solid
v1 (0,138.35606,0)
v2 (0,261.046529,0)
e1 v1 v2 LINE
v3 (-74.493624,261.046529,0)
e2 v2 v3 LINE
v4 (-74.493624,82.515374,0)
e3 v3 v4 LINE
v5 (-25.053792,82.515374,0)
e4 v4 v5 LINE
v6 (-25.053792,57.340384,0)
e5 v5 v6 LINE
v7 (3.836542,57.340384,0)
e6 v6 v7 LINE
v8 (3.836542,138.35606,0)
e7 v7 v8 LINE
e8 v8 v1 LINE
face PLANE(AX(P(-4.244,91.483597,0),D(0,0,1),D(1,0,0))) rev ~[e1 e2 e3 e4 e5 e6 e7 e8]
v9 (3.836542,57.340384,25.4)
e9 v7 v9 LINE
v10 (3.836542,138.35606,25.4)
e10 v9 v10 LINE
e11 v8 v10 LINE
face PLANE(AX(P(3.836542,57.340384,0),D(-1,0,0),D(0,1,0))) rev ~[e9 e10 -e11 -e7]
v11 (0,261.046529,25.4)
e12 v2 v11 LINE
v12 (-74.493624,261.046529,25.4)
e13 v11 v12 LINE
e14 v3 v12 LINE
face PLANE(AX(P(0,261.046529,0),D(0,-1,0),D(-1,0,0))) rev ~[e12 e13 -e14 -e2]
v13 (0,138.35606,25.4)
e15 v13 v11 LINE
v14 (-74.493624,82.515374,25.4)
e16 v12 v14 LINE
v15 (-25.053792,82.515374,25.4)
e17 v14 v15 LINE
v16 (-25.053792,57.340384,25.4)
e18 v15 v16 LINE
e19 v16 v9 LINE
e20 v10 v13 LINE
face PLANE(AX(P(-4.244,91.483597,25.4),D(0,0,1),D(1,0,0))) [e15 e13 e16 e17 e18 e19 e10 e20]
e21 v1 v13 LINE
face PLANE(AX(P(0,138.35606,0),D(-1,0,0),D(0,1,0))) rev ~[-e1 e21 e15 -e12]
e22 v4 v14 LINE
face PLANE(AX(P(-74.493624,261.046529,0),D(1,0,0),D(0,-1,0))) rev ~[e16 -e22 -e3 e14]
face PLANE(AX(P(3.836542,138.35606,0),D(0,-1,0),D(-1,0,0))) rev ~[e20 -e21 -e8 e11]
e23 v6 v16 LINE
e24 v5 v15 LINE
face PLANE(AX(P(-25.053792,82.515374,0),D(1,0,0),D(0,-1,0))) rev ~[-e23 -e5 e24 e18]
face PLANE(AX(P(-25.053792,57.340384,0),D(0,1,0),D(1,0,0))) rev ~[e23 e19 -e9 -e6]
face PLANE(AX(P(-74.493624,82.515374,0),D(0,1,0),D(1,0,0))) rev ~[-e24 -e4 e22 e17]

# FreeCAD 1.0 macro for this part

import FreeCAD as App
import Part
import Sketcher
from FreeCAD import Vector
Q = App.Units.Quantity

doc = App.newDocument("Part")
body = doc.addObject("PartDesign::Body", "Body")

# Sketch on XY plane
sketch1 = body.newObject("Sketcher::SketchObject", "Sketch")
sketch1.AttachmentSupport = (doc.getObject("XY_Plane"), [""])
sketch1.MapMode = "FlatFace"
sketch1.addGeometry([
    Part.LineSegment(Vector(-25.053792, 57.340384, 0), Vector(3.836542, 57.340384, 0)),  # 0
    Part.LineSegment(Vector(3.836542, 57.340384, 0), Vector(3.836542, 138.35606, 0)),  # 1
    Part.LineSegment(Vector(3.836542, 138.35606, 0), Vector(0, 138.35606, 0)),  # 2
    Part.LineSegment(Vector(0, 138.35606, 0), Vector(0, 261.046529, 0)),  # 3
    Part.LineSegment(Vector(0, 261.046529, 0), Vector(-74.493624, 261.046529, 0)),  # 4
    Part.LineSegment(Vector(-74.493624, 261.046529, 0), Vector(-74.493624, 82.515374, 0)),  # 5
    Part.LineSegment(Vector(-74.493624, 82.515374, 0), Vector(-25.053792, 82.515374, 0)),  # 6
    Part.LineSegment(Vector(-25.053792, 82.515374, 0), Vector(-25.053792, 57.340384, 0)),  # 7
], False)
sketch1.addConstraint([
    Sketcher.Constraint("Coincident", 0, 2, 1, 1),
    Sketcher.Constraint("Coincident", 1, 2, 2, 1),
    Sketcher.Constraint("Coincident", 2, 2, 3, 1),
    Sketcher.Constraint("Coincident", 3, 2, 4, 1),
    Sketcher.Constraint("Coincident", 4, 2, 5, 1),
    Sketcher.Constraint("Coincident", 5, 2, 6, 1),
    Sketcher.Constraint("Coincident", 6, 2, 7, 1),
    Sketcher.Constraint("Coincident", 7, 2, 0, 1),
    Sketcher.Constraint("Horizontal", 0),
    Sketcher.Constraint("Vertical", 1),
    Sketcher.Constraint("Horizontal", 2),
    Sketcher.Constraint("Vertical", 3),
    Sketcher.Constraint("Horizontal", 4),
    Sketcher.Constraint("Vertical", 5),
    Sketcher.Constraint("Horizontal", 6),
    Sketcher.Constraint("Vertical", 7),
    Sketcher.Constraint("PointOnObject", 2, 2, -2),
    Sketcher.Constraint("DistanceY", 3, 1, 3, 2, 122.690469),
    Sketcher.Constraint("DistanceY", 7, 2, 7, 1, 25.17499),
    Sketcher.Constraint("DistanceX", 0, 1, 0, 2, 28.890334),
    Sketcher.Constraint("DistanceX", 2, 2, 2, 1, 3.836542),
    Sketcher.Constraint("DistanceX", 4, 2, 4, 1, 74.493624),
    Sketcher.Constraint("DistanceY", 1, 1, 1, 2, 81.015676),
    Sketcher.Constraint("DistanceY", -1, 1, 1, 2, 138.35606),
])
pad1 = body.newObject("PartDesign::Pad", "Pad")
pad1.Profile = sketch1
pad1.Length = Q("1 in")

doc.recompute()
